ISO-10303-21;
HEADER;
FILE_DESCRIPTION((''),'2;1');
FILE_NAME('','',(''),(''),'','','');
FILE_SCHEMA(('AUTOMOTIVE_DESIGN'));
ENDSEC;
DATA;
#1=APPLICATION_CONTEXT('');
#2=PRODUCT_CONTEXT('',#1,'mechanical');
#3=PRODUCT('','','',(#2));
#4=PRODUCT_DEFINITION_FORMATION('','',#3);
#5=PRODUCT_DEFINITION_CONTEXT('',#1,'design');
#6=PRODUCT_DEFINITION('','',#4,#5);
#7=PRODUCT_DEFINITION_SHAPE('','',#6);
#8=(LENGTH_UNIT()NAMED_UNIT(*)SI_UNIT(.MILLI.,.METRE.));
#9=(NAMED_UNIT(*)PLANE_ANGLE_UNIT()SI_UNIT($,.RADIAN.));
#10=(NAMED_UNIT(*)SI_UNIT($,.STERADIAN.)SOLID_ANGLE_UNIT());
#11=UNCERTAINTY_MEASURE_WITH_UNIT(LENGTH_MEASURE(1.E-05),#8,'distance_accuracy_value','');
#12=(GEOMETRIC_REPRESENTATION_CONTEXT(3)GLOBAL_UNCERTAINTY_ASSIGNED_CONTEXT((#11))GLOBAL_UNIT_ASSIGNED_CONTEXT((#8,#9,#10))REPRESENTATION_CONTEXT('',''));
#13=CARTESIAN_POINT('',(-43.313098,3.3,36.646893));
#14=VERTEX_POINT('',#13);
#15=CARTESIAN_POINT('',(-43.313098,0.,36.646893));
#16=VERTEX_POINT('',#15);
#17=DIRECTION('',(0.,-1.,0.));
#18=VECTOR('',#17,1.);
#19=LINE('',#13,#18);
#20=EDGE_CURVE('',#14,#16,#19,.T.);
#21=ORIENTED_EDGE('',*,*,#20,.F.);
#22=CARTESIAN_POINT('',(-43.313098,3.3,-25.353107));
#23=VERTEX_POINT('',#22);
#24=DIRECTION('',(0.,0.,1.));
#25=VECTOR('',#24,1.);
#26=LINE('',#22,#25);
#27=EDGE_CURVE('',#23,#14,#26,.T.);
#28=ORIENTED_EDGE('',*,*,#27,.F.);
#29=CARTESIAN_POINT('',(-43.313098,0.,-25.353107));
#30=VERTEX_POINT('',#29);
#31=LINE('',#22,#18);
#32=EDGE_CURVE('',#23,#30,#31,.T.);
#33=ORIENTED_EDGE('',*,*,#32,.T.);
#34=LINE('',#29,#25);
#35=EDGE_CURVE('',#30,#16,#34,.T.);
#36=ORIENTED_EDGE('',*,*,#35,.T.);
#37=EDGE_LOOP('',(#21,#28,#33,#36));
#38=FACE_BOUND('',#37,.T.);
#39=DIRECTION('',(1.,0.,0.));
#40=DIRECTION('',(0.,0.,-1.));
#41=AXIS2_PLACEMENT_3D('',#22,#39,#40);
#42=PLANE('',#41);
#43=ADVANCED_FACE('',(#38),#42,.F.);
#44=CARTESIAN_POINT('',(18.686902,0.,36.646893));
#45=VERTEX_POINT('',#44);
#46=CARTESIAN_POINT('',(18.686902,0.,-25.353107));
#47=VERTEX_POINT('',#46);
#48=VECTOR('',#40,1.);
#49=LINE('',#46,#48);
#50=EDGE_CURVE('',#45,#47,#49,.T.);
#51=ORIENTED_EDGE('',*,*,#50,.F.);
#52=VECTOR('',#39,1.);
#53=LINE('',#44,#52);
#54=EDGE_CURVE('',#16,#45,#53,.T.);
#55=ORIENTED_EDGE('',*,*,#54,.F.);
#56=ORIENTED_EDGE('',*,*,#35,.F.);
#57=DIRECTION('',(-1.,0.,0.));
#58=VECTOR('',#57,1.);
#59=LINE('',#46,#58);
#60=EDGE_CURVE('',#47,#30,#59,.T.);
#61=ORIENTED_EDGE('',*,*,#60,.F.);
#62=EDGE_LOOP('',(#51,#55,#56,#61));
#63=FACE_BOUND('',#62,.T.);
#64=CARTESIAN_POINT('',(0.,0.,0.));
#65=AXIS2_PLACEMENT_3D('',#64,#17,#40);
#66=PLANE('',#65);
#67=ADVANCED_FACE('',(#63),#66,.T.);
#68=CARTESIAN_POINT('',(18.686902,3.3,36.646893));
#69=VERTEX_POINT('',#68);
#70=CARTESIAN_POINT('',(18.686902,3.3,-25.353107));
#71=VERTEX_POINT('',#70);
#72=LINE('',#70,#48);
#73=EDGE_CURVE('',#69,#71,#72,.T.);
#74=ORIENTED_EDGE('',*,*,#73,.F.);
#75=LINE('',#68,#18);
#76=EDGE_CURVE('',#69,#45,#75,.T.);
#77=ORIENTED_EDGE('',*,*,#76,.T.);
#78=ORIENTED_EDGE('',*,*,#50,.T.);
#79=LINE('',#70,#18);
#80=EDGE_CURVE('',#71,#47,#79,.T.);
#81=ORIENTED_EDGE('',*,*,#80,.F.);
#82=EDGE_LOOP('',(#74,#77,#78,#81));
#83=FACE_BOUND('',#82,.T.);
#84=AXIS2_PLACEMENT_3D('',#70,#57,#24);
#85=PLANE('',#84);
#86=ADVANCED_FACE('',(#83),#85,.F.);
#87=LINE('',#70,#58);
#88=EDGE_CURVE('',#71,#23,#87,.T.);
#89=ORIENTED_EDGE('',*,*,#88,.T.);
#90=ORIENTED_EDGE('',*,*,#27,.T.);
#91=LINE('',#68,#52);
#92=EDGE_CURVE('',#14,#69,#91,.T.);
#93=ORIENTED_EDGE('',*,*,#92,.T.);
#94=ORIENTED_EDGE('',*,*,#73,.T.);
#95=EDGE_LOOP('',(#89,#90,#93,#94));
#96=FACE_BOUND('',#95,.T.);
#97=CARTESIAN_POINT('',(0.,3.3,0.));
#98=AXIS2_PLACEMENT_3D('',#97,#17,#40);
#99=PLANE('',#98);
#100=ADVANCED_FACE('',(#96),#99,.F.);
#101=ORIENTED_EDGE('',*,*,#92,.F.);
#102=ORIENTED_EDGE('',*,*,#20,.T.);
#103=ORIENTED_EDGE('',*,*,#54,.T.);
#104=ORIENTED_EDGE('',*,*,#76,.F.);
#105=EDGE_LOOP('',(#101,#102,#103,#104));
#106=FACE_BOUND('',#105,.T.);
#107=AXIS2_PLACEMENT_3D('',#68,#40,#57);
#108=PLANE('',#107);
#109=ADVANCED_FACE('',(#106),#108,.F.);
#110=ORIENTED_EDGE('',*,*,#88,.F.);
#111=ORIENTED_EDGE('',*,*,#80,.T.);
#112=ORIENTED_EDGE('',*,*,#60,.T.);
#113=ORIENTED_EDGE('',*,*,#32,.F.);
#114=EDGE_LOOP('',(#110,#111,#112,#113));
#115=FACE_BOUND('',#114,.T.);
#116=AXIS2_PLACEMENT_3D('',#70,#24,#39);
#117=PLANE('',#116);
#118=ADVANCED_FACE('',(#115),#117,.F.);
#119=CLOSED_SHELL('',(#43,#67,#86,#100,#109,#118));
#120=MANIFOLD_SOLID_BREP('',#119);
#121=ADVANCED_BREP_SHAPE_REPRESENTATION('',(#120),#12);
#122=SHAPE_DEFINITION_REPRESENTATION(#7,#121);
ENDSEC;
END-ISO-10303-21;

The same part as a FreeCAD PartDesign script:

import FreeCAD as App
import Part
import Sketcher
from FreeCAD import Vector
Q = App.Units.Quantity


def add_polygon(sketch, points):
    """Adds a closed chain of lines whose ends are joined by coincident constraints."""
    first, n = sketch.GeometryCount, len(points)
    for a, b in zip(points, points[1:] + points[:1]):
        sketch.addGeometry(Part.LineSegment(App.Vector(*a, 0), App.Vector(*b, 0)), False)
    for i in range(n):
        sketch.addConstraint(Sketcher.Constraint("Coincident", first + i, 2, first + (i + 1) % n, 1))

doc = App.newDocument("Part")
params = doc.addObject("Spreadsheet::Sheet", "Params")
for row, (alias, value) in enumerate([
    ("sketch1_width", "62 mm"),
    ("pad1_length", "3.3 mm"),
], start=1):
    params.set(f"A{row}", alias)
    params.set(f"B{row}", "=" + value)
    params.setAlias(f"B{row}", alias)

body = doc.addObject("PartDesign::Body", "Body")

# Sketch on XZ plane
sketch1 = body.newObject("Sketcher::SketchObject", "Sketch")
sketch1.AttachmentSupport = (doc.getObject("XZ_Plane"), [""])
sketch1.MapMode = "FlatFace"
add_polygon(sketch1, [(-43.313098, -25.353107), (-43.313098, 36.646893), (18.686902, 36.646893), (18.686902, -25.353107)])  # lines 0-3
sketch1.addConstraint(Sketcher.Constraint("Vertical", 0))
sketch1.addConstraint(Sketcher.Constraint("Horizontal", 1))
sketch1.addConstraint(Sketcher.Constraint("Vertical", 2))
sketch1.addConstraint(Sketcher.Constraint("Horizontal", 3))
sketch1.addConstraint(Sketcher.Constraint("Equal", 3, 0))
sketch1.addConstraint(Sketcher.Constraint("DistanceX", 1, 1, 1, 2, Q("62 mm")))
sketch1.addConstraint(Sketcher.Constraint("DistanceX", 0, 2, -1, 1, Q("43.313098 mm")))
sketch1.addConstraint(Sketcher.Constraint("DistanceY", -1, 1, 0, 2, Q("36.646893 mm")))
sketch1.setExpression("Constraints[9]", "Params.sketch1_width")
pad1 = body.newObject("PartDesign::Pad", "Pad")
pad1.Profile = sketch1
pad1.setExpression("Length", "Params.pad1_length")
pad1.Reversed = True

doc.recompute()
